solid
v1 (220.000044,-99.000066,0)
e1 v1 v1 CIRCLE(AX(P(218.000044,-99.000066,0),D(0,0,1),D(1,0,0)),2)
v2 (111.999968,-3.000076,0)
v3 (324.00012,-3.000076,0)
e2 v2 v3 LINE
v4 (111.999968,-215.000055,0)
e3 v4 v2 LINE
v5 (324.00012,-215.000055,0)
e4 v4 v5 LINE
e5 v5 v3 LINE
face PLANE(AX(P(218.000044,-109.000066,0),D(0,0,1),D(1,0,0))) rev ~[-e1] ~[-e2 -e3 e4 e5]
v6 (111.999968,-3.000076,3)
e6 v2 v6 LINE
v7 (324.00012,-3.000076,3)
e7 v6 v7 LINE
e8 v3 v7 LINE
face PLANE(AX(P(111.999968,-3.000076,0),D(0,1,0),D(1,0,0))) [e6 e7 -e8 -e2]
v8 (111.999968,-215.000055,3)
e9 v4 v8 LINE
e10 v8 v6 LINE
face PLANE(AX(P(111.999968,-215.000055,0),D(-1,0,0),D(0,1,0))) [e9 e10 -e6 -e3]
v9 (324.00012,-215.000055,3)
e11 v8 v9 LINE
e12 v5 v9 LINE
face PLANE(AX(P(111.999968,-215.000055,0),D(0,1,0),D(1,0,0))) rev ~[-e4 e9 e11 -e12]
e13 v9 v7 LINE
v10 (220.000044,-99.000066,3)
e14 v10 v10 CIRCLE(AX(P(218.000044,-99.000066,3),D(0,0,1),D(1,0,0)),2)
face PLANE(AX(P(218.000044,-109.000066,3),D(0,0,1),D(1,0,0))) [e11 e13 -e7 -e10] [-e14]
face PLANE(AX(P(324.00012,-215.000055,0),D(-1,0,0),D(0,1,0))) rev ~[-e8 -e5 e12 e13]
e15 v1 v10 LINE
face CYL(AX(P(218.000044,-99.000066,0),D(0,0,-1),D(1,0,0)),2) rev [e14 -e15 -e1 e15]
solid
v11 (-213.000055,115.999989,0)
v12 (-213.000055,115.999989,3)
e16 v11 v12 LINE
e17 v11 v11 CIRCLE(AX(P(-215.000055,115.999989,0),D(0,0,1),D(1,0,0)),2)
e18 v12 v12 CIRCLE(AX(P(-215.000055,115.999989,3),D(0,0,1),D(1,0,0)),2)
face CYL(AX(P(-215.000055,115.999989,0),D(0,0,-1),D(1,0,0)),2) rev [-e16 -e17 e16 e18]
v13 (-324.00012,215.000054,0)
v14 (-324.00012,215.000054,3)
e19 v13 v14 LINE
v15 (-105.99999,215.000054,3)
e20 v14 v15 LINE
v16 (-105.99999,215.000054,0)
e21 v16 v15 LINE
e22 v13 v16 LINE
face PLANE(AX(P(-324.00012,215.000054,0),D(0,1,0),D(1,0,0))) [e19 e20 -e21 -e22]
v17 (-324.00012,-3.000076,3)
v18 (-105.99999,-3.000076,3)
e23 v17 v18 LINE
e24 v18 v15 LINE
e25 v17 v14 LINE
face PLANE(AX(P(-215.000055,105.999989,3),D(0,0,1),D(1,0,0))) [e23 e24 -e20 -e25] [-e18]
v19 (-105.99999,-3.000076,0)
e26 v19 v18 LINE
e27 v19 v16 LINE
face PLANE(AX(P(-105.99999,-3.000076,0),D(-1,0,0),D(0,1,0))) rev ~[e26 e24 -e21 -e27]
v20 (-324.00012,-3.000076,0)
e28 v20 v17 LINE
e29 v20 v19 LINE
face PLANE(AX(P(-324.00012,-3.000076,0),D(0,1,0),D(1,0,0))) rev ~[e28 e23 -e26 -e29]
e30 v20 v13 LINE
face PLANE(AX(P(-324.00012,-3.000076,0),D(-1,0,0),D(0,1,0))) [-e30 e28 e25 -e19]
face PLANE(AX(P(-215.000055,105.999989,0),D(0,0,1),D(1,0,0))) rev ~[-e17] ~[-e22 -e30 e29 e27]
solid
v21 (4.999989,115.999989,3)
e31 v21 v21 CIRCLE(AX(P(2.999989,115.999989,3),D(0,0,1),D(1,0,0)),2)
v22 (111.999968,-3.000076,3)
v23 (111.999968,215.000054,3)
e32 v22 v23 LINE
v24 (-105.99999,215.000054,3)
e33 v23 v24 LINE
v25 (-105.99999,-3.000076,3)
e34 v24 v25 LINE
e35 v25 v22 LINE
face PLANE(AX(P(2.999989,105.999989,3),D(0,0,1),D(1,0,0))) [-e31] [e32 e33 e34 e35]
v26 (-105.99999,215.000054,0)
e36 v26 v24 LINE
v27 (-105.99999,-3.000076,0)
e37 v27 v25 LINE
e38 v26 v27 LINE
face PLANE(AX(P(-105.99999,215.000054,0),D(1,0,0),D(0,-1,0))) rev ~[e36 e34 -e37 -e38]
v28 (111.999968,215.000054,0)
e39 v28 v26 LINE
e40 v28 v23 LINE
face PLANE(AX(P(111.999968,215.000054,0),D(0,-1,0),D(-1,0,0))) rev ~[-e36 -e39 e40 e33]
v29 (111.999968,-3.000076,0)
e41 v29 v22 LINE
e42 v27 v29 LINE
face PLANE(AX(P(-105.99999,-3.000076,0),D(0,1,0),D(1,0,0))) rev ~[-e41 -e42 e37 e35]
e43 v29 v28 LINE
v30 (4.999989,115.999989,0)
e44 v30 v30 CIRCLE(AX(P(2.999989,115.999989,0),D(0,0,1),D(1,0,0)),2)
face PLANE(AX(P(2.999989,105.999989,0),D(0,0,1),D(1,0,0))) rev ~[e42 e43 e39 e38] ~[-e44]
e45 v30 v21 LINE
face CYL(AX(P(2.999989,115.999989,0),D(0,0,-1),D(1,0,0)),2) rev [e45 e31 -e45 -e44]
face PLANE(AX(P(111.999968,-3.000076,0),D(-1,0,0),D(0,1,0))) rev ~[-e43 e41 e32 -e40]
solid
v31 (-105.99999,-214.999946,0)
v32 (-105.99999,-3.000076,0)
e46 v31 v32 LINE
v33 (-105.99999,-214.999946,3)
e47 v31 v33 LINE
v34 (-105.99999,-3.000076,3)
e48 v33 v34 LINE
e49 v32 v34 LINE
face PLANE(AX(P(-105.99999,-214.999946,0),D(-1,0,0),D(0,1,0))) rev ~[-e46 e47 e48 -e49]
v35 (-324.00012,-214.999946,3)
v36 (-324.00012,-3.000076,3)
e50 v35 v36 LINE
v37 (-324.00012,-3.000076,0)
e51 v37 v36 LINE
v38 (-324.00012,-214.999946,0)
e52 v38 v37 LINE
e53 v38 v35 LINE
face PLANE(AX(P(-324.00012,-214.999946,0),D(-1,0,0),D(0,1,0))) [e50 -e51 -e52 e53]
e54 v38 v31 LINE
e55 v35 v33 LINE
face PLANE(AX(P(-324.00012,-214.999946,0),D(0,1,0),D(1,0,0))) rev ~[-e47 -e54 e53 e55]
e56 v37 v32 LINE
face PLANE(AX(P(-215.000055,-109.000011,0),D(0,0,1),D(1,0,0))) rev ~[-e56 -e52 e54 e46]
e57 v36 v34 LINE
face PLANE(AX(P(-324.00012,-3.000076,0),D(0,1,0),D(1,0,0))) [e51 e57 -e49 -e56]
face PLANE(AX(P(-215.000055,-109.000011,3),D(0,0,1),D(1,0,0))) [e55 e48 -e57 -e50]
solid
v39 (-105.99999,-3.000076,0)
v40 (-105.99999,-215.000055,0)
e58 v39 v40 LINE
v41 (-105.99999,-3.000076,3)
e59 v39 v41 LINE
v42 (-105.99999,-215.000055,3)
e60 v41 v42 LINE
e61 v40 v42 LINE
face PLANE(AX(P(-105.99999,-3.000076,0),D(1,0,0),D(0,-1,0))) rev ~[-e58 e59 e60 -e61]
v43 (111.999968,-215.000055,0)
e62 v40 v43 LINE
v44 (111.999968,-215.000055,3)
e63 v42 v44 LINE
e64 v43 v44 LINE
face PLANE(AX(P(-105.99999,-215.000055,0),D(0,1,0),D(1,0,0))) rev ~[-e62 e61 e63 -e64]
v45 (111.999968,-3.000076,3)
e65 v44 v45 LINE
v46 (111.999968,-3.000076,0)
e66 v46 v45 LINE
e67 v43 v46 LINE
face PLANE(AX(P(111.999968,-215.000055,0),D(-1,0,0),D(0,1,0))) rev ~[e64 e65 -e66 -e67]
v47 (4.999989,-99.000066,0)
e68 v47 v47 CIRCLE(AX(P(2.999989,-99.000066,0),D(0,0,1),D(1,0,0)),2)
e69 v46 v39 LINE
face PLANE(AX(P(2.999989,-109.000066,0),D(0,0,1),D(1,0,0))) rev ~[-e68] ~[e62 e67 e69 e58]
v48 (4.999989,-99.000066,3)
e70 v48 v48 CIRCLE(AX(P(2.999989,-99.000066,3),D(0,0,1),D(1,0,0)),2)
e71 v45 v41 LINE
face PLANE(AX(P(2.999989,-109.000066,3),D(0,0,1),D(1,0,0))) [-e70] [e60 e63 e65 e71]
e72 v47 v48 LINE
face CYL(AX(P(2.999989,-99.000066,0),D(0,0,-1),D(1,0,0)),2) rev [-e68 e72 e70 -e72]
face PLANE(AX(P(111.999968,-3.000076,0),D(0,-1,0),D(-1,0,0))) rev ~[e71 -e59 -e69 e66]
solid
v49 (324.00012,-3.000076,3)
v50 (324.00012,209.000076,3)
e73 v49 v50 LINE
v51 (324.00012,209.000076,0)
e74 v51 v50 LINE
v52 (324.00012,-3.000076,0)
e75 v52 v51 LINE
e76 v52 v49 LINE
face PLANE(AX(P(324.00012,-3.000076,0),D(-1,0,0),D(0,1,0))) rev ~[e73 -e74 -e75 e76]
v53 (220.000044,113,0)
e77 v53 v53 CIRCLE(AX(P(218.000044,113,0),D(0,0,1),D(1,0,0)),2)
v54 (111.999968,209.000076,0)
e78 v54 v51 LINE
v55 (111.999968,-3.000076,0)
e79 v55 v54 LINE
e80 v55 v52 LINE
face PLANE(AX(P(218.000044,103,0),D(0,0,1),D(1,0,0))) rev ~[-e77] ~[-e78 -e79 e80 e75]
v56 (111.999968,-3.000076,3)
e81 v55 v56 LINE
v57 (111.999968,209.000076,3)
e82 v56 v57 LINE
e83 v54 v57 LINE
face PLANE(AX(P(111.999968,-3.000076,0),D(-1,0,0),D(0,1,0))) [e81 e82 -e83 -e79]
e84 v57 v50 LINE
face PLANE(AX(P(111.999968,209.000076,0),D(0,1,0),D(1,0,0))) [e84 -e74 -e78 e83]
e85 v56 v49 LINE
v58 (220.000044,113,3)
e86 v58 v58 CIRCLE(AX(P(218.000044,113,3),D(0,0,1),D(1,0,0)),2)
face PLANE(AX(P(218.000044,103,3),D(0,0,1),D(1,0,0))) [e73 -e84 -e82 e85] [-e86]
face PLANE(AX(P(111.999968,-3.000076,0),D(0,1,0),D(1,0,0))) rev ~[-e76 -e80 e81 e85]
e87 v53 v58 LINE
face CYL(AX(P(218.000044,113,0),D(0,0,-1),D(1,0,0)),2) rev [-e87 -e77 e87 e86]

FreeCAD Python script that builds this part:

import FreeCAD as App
import Part
import Sketcher

V = App.Vector
Q = App.Units.Quantity


def add_polygon(sketch, points):
    """Adds a closed chain of lines whose ends are joined by coincident constraints."""
    first, n = sketch.GeometryCount, len(points)
    for a, b in zip(points, points[1:] + points[:1]):
        sketch.addGeometry(Part.LineSegment(App.Vector(*a, 0), App.Vector(*b, 0)), False)
    for i in range(n):
        sketch.addConstraint(Sketcher.Constraint("Coincident", first + i, 2, first + (i + 1) % n, 1))

doc = App.newDocument("Part")
params = doc.addObject("Spreadsheet::Sheet", "Params")
for row, (alias, value) in enumerate([
    ("sketch1_diameter", "4 mm"),
    ("pad1_length", "3 mm"),
    ("sketch2_diameter", "4 mm"),
    ("pad2_length", "3 mm"),
    ("sketch3_diameter", "4 mm"),
    ("pad3_length", "3 mm"),
    ("pad4_length", "3 mm"),
    ("sketch5_diameter", "4 mm"),
    ("pad5_length", "3 mm"),
    ("sketch6_diameter", "4 mm"),
    ("pad6_length", "3 mm"),
], start=1):
    params.set(f"A{row}", alias)
    params.set(f"B{row}", "=" + value)
    params.setAlias(f"B{row}", alias)

body = doc.addObject("PartDesign::Body", "Body")

# Sketch on XY plane
sketch1 = doc.addObject("Sketcher::SketchObject", "Sketch")
body.addObject(sketch1)
sketch1.AttachmentSupport = (doc.XY_Plane, [""])
sketch1.MapMode = "FlatFace"
add_polygon(sketch1, [(-324, 215), (-324, -3), (-106, -3), (-106, 215)])  # lines 0-3
sketch1.addGeometry(Part.Circle(V(-215, 116, 0), V(0, 0, 1), 2), False)  # 4
sketch1.addConstraint([
    Sketcher.Constraint("Vertical", 0),
    Sketcher.Constraint("Horizontal", 1),
    Sketcher.Constraint("Vertical", 2),
    Sketcher.Constraint("Horizontal", 3),
    Sketcher.Constraint("Equal", 3, 0),
    Sketcher.Constraint("Diameter", 4, Q("4 mm")),
    Sketcher.Constraint("DistanceX", 1, 1, 1, 2, Q("218.00013 mm")),
    Sketcher.Constraint("DistanceY", -1, 1, 4, 3, Q("115.999989 mm")),
    Sketcher.Constraint("DistanceX", 0, 2, -1, 1, Q("324.00012 mm")),
    Sketcher.Constraint("DistanceX", 4, 3, -1, 1, Q("215.000055 mm")),
    Sketcher.Constraint("DistanceY", 0, 2, -1, 1, Q("3.000076 mm")),
])
sketch1.setExpression("Constraints[9]", "Params.sketch1_diameter")
pad1 = doc.addObject("PartDesign::Pad", "Pad")
body.addObject(pad1)
pad1.Profile = sketch1
pad1.setExpression("Length", "Params.pad1_length")
body2 = doc.addObject("PartDesign::Body", "Body001")

# Sketch on XY plane
sketch2 = doc.addObject("Sketcher::SketchObject", "Sketch001")
body2.addObject(sketch2)
sketch2.AttachmentSupport = (doc.getObject("XY_Plane001"), [""])
sketch2.MapMode = "FlatFace"
add_polygon(sketch2, [(112, 215), (-106, 215), (-106, -3), (112, -3)])  # lines 0-3
sketch2.addGeometry(Part.Circle(V(3, 116, 0), V(0, 0, 1), 2), False)  # 4
sketch2.addConstraint([
    Sketcher.Constraint("Horizontal", 0),
    Sketcher.Constraint("Vertical", 1),
    Sketcher.Constraint("Horizontal", 2),
    Sketcher.Constraint("Vertical", 3),
    Sketcher.Constraint("Diameter", 4, Q("4 mm")),
    Sketcher.Constraint("DistanceX", 0, 2, 0, 1, Q("217.999958 mm")),
    Sketcher.Constraint("DistanceY", 1, 2, 1, 1, Q("218.00013 mm")),
    Sketcher.Constraint("DistanceX", -1, 1, 4, 3, Q("2.999989 mm")),
    Sketcher.Constraint("DistanceY", -1, 1, 4, 3, Q("115.999989 mm")),
    Sketcher.Constraint("DistanceX", 0, 2, -1, 1, Q("105.99999 mm")),
    Sketcher.Constraint("DistanceY", -1, 1, 0, 2, Q("215.000054 mm")),
])
sketch2.setExpression("Constraints[8]", "Params.sketch2_diameter")
pad2 = doc.addObject("PartDesign::Pad", "Pad001")
body2.addObject(pad2)
pad2.Profile = sketch2
pad2.setExpression("Length", "Params.pad2_length")
body3 = doc.addObject("PartDesign::Body", "Body002")

# Sketch on XY plane
sketch3 = doc.addObject("Sketcher::SketchObject", "Sketch002")
body3.addObject(sketch3)
sketch3.AttachmentSupport = (doc.getObject("XY_Plane002"), [""])
sketch3.MapMode = "FlatFace"
add_polygon(sketch3, [(112, 209), (112, -3), (324, -3), (324, 209)])  # lines 0-3
sketch3.addGeometry(Part.Circle(V(218, 113, 0), V(0, 0, 1), 2), False)  # 4
sketch3.addConstraint([
    Sketcher.Constraint("Vertical", 0),
    Sketcher.Constraint("Horizontal", 1),
    Sketcher.Constraint("Vertical", 2),
    Sketcher.Constraint("Horizontal", 3),
    Sketcher.Constraint("Equal", 3, 0),
    Sketcher.Constraint("Diameter", 4, Q("4 mm")),
    Sketcher.Constraint("DistanceY", -1, 1, 4, 3, Q("113 mm")),
    Sketcher.Constraint("DistanceX", 1, 1, 1, 2, Q("212.000152 mm")),
    Sketcher.Constraint("DistanceX", -1, 1, 1, 2, Q("324.00012 mm")),
    Sketcher.Constraint("DistanceX", -1, 1, 4, 3, Q("218.000044 mm")),
    Sketcher.Constraint("DistanceY", 0, 2, -1, 1, Q("3.000076 mm")),
])
sketch3.setExpression("Constraints[9]", "Params.sketch3_diameter")
pad3 = doc.addObject("PartDesign::Pad", "Pad002")
body3.addObject(pad3)
pad3.Profile = sketch3
pad3.setExpression("Length", "Params.pad3_length")
body4 = doc.addObject("PartDesign::Body", "Body003")

# Sketch on XY plane
sketch4 = doc.addObject("Sketcher::SketchObject", "Sketch003")
body4.addObject(sketch4)
sketch4.AttachmentSupport = (doc.getObject("XY_Plane003"), [""])
sketch4.MapMode = "FlatFace"
add_polygon(sketch4, [(-324, -3), (-324, -215), (-106, -215), (-106, -3)])  # lines 0-3
sketch4.addConstraint([
    Sketcher.Constraint("Vertical", 0),
    Sketcher.Constraint("Horizontal", 1),
    Sketcher.Constraint("Vertical", 2),
    Sketcher.Constraint("Horizontal", 3),
    Sketcher.Constraint("DistanceX", 1, 1, 1, 2, Q("218.00013 mm")),
    Sketcher.Constraint("DistanceY", 0, 2, 0, 1, Q("211.99987 mm")),
    Sketcher.Constraint("DistanceX", 0, 2, -1, 1, Q("324.00012 mm")),
    Sketcher.Constraint("DistanceY", 0, 2, -1, 1, Q("214.999946 mm")),
])
pad4 = doc.addObject("PartDesign::Pad", "Pad003")
body4.addObject(pad4)
pad4.Profile = sketch4
pad4.setExpression("Length", "Params.pad4_length")
body5 = doc.addObject("PartDesign::Body", "Body004")

# Sketch on XY plane
sketch5 = doc.addObject("Sketcher::SketchObject", "Sketch004")
body5.addObject(sketch5)
sketch5.AttachmentSupport = (doc.getObject("XY_Plane004"), [""])
sketch5.MapMode = "FlatFace"
add_polygon(sketch5, [(112, -3), (-106, -3), (-106, -215), (112, -215)])  # lines 0-3
sketch5.addGeometry(Part.Circle(V(3, -99, 0), V(0, 0, 1), 2), False)  # 4
sketch5.addConstraint([
    Sketcher.Constraint("Horizontal", 0),
    Sketcher.Constraint("Vertical", 1),
    Sketcher.Constraint("Horizontal", 2),
    Sketcher.Constraint("Vertical", 3),
    Sketcher.Constraint("Diameter", 4, Q("4 mm")),
    Sketcher.Constraint("DistanceX", 0, 2, 0, 1, Q("217.999958 mm")),
    Sketcher.Constraint("DistanceY", 1, 2, 1, 1, Q("211.999979 mm")),
    Sketcher.Constraint("DistanceX", -1, 1, 4, 3, Q("2.999989 mm")),
    Sketcher.Constraint("DistanceX", 0, 2, -1, 1, Q("105.99999 mm")),
    Sketcher.Constraint("DistanceY", 4, 3, 0, 2, Q("95.999989 mm")),
    Sketcher.Constraint("DistanceY", 4, 3, -1, 1, Q("99.000066 mm")),
])
sketch5.setExpression("Constraints[8]", "Params.sketch5_diameter")
pad5 = doc.addObject("PartDesign::Pad", "Pad004")
body5.addObject(pad5)
pad5.Profile = sketch5
pad5.setExpression("Length", "Params.pad5_length")
body6 = doc.addObject("PartDesign::Body", "Body005")

# Sketch on XY plane
sketch6 = doc.addObject("Sketcher::SketchObject", "Sketch005")
body6.addObject(sketch6)
sketch6.AttachmentSupport = (doc.getObject("XY_Plane005"), [""])
sketch6.MapMode = "FlatFace"
add_polygon(sketch6, [(112, -3), (112, -215), (324, -215), (324, -3)])  # lines 0-3
sketch6.addGeometry(Part.Circle(V(218, -99, 0), V(0, 0, 1), 2), False)  # 4
sketch6.addConstraint([
    Sketcher.Constraint("Vertical", 0),
    Sketcher.Constraint("Horizontal", 1),
    Sketcher.Constraint("Vertical", 2),
    Sketcher.Constraint("Horizontal", 3),
    Sketcher.Constraint("Diameter", 4, Q("4 mm")),
    Sketcher.Constraint("DistanceX", 1, 1, 1, 2, Q("212.000152 mm")),
    Sketcher.Constraint("DistanceY", 0, 2, 0, 1, Q("211.999979 mm")),
    Sketcher.Constraint("DistanceX", -1, 1, 1, 2, Q("324.00012 mm")),
    Sketcher.Constraint("DistanceY", 0, 2, 4, 3, Q("115.999989 mm")),
    Sketcher.Constraint("DistanceX", -1, 1, 4, 3, Q("218.000044 mm")),
    Sketcher.Constraint("DistanceY", 4, 3, -1, 1, Q("99.000066 mm")),
])
sketch6.setExpression("Constraints[8]", "Params.sketch6_diameter")
pad6 = doc.addObject("PartDesign::Pad", "Pad005")
body6.addObject(pad6)
pad6.Profile = sketch6
pad6.setExpression("Length", "Params.pad6_length")

doc.recompute()
